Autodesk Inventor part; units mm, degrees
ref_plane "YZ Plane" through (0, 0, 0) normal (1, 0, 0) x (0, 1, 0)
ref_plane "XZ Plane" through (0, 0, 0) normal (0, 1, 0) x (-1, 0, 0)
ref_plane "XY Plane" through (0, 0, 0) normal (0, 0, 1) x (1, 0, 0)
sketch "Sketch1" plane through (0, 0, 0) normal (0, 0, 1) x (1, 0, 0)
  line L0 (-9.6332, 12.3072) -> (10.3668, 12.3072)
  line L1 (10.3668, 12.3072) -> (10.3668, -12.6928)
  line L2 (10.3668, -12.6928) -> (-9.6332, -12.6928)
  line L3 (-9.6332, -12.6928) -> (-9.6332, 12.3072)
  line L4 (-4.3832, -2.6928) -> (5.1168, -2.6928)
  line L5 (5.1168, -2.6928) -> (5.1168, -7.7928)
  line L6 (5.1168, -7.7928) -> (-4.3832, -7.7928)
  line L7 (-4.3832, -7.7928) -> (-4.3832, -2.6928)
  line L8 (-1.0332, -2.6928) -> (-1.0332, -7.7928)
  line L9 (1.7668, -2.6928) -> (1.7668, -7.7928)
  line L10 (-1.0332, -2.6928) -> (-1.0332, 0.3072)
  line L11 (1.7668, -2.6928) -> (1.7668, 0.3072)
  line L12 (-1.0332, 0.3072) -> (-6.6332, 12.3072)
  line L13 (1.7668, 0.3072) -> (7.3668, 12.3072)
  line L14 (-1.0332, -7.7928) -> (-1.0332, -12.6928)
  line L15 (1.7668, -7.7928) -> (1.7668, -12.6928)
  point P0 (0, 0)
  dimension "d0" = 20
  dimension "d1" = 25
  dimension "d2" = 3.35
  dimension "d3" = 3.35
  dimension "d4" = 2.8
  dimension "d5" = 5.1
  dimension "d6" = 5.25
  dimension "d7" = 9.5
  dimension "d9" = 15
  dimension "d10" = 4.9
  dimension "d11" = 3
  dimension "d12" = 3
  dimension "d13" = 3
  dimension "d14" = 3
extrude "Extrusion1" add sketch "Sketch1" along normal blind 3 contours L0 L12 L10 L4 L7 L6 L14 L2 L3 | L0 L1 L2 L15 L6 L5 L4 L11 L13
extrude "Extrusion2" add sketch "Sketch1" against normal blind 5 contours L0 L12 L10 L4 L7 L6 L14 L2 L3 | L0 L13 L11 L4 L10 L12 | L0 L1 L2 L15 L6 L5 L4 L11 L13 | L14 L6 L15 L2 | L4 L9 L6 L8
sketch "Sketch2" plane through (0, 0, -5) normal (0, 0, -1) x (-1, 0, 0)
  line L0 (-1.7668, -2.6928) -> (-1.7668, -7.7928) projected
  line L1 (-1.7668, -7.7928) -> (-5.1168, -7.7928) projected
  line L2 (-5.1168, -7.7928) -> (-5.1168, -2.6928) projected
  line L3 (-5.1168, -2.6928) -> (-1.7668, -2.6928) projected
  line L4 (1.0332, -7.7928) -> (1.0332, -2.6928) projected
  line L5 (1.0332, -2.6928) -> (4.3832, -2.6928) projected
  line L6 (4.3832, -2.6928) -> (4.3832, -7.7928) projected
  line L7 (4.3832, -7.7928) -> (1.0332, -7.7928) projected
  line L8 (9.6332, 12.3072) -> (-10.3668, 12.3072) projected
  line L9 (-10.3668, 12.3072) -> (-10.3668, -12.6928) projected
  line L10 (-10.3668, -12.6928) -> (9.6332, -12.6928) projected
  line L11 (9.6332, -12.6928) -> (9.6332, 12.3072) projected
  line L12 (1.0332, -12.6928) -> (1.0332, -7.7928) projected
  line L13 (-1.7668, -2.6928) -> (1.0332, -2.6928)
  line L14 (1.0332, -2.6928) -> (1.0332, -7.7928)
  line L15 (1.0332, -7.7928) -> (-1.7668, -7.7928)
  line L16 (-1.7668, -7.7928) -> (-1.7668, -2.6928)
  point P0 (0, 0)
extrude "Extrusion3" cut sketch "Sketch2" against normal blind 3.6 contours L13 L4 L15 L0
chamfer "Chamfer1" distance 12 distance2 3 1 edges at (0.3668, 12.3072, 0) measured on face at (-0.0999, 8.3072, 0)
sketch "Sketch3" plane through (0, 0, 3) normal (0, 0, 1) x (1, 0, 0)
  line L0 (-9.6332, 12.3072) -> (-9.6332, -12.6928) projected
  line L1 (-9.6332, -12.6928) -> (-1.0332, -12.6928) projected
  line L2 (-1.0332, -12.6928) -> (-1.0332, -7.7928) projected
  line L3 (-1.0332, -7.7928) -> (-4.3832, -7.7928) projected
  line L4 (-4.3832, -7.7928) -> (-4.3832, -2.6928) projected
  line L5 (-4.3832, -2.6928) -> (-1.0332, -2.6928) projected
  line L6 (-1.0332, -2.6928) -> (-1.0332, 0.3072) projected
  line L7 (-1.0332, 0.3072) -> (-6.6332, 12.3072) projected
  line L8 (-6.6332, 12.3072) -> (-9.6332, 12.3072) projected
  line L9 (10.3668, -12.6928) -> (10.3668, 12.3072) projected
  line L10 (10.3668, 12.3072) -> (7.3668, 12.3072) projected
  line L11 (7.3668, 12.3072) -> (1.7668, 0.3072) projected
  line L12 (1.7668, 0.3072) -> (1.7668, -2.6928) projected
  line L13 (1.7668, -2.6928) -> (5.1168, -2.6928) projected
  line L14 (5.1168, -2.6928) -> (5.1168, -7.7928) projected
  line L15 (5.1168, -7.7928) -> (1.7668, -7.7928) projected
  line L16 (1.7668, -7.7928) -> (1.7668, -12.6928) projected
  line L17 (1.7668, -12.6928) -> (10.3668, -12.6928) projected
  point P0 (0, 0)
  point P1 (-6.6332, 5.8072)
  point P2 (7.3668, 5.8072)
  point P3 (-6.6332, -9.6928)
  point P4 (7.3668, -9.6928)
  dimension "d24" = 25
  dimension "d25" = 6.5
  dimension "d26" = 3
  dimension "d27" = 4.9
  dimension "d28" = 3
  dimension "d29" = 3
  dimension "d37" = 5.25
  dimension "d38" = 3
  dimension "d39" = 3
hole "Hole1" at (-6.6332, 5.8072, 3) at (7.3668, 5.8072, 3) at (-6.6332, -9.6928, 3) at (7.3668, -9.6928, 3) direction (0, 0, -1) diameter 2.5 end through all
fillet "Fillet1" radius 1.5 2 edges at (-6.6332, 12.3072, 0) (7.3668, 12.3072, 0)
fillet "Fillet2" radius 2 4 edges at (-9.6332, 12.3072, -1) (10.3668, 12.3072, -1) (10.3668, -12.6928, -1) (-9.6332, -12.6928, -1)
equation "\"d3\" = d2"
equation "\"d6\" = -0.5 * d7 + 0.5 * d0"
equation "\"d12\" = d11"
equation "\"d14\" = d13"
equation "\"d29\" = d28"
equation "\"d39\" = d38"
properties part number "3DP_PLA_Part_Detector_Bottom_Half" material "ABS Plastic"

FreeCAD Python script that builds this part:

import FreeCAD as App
import Part
import Sketcher

V = App.Vector


def edges_at(feature, points):
    """Names of the edges that pass closest to the given points."""
    edges = feature.Shape.Edges
    near = lambda p: min(range(len(edges)), key=lambda i: edges[i].distToShape(Part.Vertex(*p))[0])
    return sorted({f"Edge{near(p) + 1}" for p in points})


def add_polygon(sketch, points):
    """Adds a closed chain of lines whose ends are joined by coincident constraints."""
    first, n = sketch.GeometryCount, len(points)
    for a, b in zip(points, points[1:] + points[:1]):
        sketch.addGeometry(Part.LineSegment(App.Vector(*a, 0), App.Vector(*b, 0)), False)
    for i in range(n):
        sketch.addConstraint(Sketcher.Constraint("Coincident", first + i, 2, first + (i + 1) % n, 1))

doc = App.newDocument("Part")
body = doc.addObject("PartDesign::Body", "Body")
body.AllowCompound = True

sketch1 = body.newObject("Sketcher::SketchObject", "Sketch")
sketch1.AttachmentSupport = (doc.getObject("XY_Plane"), [""])
sketch1.MapMode = "FlatFace"
add_polygon(sketch1, [(-6.6, 12.3), (-9.6, 12.3), (-9.6, -12.7), (-1, -12.7), (-1, -7.8), (-4.4, -7.8), (-4.4, -2.7), (-1, -2.7), (-1, 0.3)])
add_polygon(sketch1, [(10.4, 12.3), (7.4, 12.3), (1.8, 0.3), (1.8, -2.7), (5.1, -2.7), (5.1, -7.8), (1.8, -7.8), (1.8, -12.7), (10.4, -12.7)])
sketch1.addConstraint([
    Sketcher.Constraint("Horizontal", 0),
    Sketcher.Constraint("Vertical", 1),
    Sketcher.Constraint("Horizontal", 2),
    Sketcher.Constraint("Vertical", 3),
    Sketcher.Constraint("Horizontal", 4),
    Sketcher.Constraint("Vertical", 5),
    Sketcher.Constraint("Horizontal", 6),
    Sketcher.Constraint("Vertical", 7),
    Sketcher.Constraint("Horizontal", 9),
    Sketcher.Constraint("Vertical", 11),
    Sketcher.Constraint("Horizontal", 12),
    Sketcher.Constraint("Vertical", 13),
    Sketcher.Constraint("Horizontal", 14),
    Sketcher.Constraint("Vertical", 15),
    Sketcher.Constraint("Horizontal", 16),
    Sketcher.Constraint("Vertical", 17),
    Sketcher.Constraint("Horizontal", 8, 2, 9, 2),
    Sketcher.Constraint("Horizontal", 7, 2, 10, 2),
    Sketcher.Constraint("Horizontal", 6, 2, 11, 2),
    Sketcher.Constraint("Horizontal", 4, 2, 13, 2),
    Sketcher.Constraint("Horizontal", 2, 2, 15, 2),
    Sketcher.Constraint("Vertical", 3, 2, 6, 2),
    Sketcher.Constraint("Vertical", 11, 2, 14, 2),
    Sketcher.Constraint("Equal", 0, 9),
    Sketcher.Constraint("Equal", 6, 12),
    Sketcher.Constraint("Equal", 2, 16),
    Sketcher.Constraint("Equal", 9, 7),
    Sketcher.Constraint("DistanceX", 0, 2, 0, 1, 3.0),
    Sketcher.Constraint("DistanceY", 1, 2, 1, 1, 25.0),
    Sketcher.Constraint("DistanceY", 3, 1, 3, 2, 4.9),
    Sketcher.Constraint("DistanceY", 5, 1, 5, 2, 5.1),
    Sketcher.Constraint("DistanceX", 4, 2, 4, 1, 3.35),
    Sketcher.Constraint("DistanceX", 7, 2, 10, 2, 2.8),
    Sketcher.Constraint("DistanceX", 1, 2, 4, 2, 5.25),
    Sketcher.Constraint("DistanceX", 0, 2, -1, 1, 9.6332),
    Sketcher.Constraint("DistanceY", -1, 1, 0, 2, 12.3072),
])
pad1 = body.newObject("PartDesign::Pad", "Pad")
pad1.Profile = sketch1
pad1.Length = 3

sketch2 = body.newObject("Sketcher::SketchObject", "Sketch001")
sketch2.AttachmentSupport = (doc.getObject("XY_Plane"), [""])
sketch2.MapMode = "FlatFace"
add_polygon(sketch2, [(-9.6, 12.3), (-9.6, -12.7), (10.4, -12.7), (10.4, 12.3)])
add_polygon(sketch2, [(-4.4, -2.7), (-1, -2.7), (-1, -7.8), (-4.4, -7.8)])
add_polygon(sketch2, [(1.8, -2.7), (5.1, -2.7), (5.1, -7.8), (1.8, -7.8)])
sketch2.addConstraint([
    Sketcher.Constraint("Vertical", 0),
    Sketcher.Constraint("Horizontal", 1),
    Sketcher.Constraint("Vertical", 2),
    Sketcher.Constraint("Horizontal", 3),
    Sketcher.Constraint("Horizontal", 4),
    Sketcher.Constraint("Vertical", 5),
    Sketcher.Constraint("Horizontal", 6),
    Sketcher.Constraint("Vertical", 7),
    Sketcher.Constraint("Horizontal", 8),
    Sketcher.Constraint("Vertical", 9),
    Sketcher.Constraint("Horizontal", 10),
    Sketcher.Constraint("Vertical", 11),
    Sketcher.Constraint("Horizontal", 7, 2, 8, 2),
    Sketcher.Constraint("Horizontal", 6, 2, 9, 2),
    Sketcher.Constraint("Equal", 6, 8),
    Sketcher.Constraint("DistanceX", 1, 1, 1, 2, 20.0),
    Sketcher.Constraint("DistanceY", 0, 2, 0, 1, 25.0),
    Sketcher.Constraint("DistanceY", 5, 2, 5, 1, 5.1),
    Sketcher.Constraint("DistanceY", 4, 2, 3, 2, 15.0),
    Sketcher.Constraint("DistanceX", 4, 1, 4, 2, 3.35),
    Sketcher.Constraint("DistanceX", 7, 2, 8, 2, 9.5),
    Sketcher.Constraint("DistanceX", 0, 2, 6, 2, 5.25),
    Sketcher.Constraint("DistanceX", 0, 2, -1, 1, 9.6332),
    Sketcher.Constraint("DistanceY", 0, 2, -1, 1, 12.6928),
])
pad2 = body.newObject("PartDesign::Pad", "Pad001")
pad2.Profile = sketch2
pad2.Length = 5
pad2.Reversed = True

sketch3 = body.newObject("Sketcher::SketchObject", "Sketch002")
sketch3.AttachmentSupport = (doc.getObject("XY_Plane"), [""])
sketch3.MapMode = "FlatFace"
sketch3.AttachmentOffset = App.Placement(V(0, 0, -5), App.Rotation())
add_polygon(sketch3, [(-1, -2.7), (1.8, -2.7), (1.8, -7.8), (-1, -7.8)])
sketch3.addConstraint([
    Sketcher.Constraint("Horizontal", 0),
    Sketcher.Constraint("Vertical", 1),
    Sketcher.Constraint("Horizontal", 2),
    Sketcher.Constraint("Vertical", 3),
    Sketcher.Constraint("DistanceX", 0, 1, 0, 2, 2.8),
    Sketcher.Constraint("DistanceY", 1, 2, 1, 1, 5.1),
    Sketcher.Constraint("DistanceX", -1, 1, 0, 2, 1.7668),
    Sketcher.Constraint("DistanceY", 0, 2, -1, 1, 2.6928),
])
pocket1 = body.newObject("PartDesign::Pocket", "Pocket")
pocket1.Profile = sketch3
pocket1.Length = 3.6
pocket1.Reversed = True
doc.recompute()

chamfer = body.newObject("PartDesign::Chamfer", "Chamfer")
chamfer.Base = (pocket1, edges_at(pocket1, [(0.367, 12.307, 0)]))
chamfer.ChamferType = "Two distances"
chamfer.Size = 12
chamfer.Size2 = 3
chamfer.FlipDirection = True

sketch4 = body.newObject("Sketcher::SketchObject", "Sketch003")
sketch4.AttachmentSupport = (doc.getObject("XY_Plane"), [""])
sketch4.MapMode = "FlatFace"
sketch4.AttachmentOffset = App.Placement(V(0, 0, 3), App.Rotation())
sketch4.addGeometry([
    Part.Circle(V(-6.6, 5.8, 0), V(0, 0, 1), 1.2),
    Part.Circle(V(7.4, 5.8, 0), V(0, 0, 1), 1.2),
    Part.Circle(V(-6.6, -9.7, 0), V(0, 0, 1), 1.2),
    Part.Circle(V(7.4, -9.7, 0), V(0, 0, 1), 1.2),
], False)
sketch4.addConstraint([
    Sketcher.Constraint("Equal", 0, 1),
    Sketcher.Constraint("Equal", 1, 2),
    Sketcher.Constraint("Equal", 2, 3),
    Sketcher.Constraint("Horizontal", 0, 3, 1, 3),
    Sketcher.Constraint("Horizontal", 2, 3, 3, 3),
    Sketcher.Constraint("Vertical", 0, 3, 2, 3),
    Sketcher.Constraint("Vertical", 1, 3, 3, 3),
    Sketcher.Constraint("Diameter", 0, 2.5),
    Sketcher.Constraint("DistanceX", 0, 3, 1, 3, 14.0),
    Sketcher.Constraint("DistanceY", 2, 3, 0, 3, 15.5),
    Sketcher.Constraint("DistanceX", 0, 3, -1, 1, 6.6332),
    Sketcher.Constraint("DistanceY", -1, 1, 0, 3, 5.8072),
])
doc.recompute()
hole = body.newObject("PartDesign::Hole", "Hole")
hole.Profile = sketch4
hole.ThreadType = "None"
hole.Diameter = 2.5
hole.DepthType = "ThroughAll"
doc.recompute()

fillet = body.newObject("PartDesign::Fillet", "Fillet")
fillet.Base = (hole, edges_at(hole, [(-6.633, 12.307, 0), (7.367, 12.307, 0)]))
fillet.Radius = 1.5
doc.recompute()

fillet2 = body.newObject("PartDesign::Fillet", "Fillet001")
fillet2.Base = (fillet, edges_at(fillet, [
    (-9.633, 12.307, -1),
    (10.367, 12.307, -1),
    (10.367, -12.693, -1),
    (-9.633, -12.693, -1),
]))
fillet2.Radius = 2

doc.recompute()
